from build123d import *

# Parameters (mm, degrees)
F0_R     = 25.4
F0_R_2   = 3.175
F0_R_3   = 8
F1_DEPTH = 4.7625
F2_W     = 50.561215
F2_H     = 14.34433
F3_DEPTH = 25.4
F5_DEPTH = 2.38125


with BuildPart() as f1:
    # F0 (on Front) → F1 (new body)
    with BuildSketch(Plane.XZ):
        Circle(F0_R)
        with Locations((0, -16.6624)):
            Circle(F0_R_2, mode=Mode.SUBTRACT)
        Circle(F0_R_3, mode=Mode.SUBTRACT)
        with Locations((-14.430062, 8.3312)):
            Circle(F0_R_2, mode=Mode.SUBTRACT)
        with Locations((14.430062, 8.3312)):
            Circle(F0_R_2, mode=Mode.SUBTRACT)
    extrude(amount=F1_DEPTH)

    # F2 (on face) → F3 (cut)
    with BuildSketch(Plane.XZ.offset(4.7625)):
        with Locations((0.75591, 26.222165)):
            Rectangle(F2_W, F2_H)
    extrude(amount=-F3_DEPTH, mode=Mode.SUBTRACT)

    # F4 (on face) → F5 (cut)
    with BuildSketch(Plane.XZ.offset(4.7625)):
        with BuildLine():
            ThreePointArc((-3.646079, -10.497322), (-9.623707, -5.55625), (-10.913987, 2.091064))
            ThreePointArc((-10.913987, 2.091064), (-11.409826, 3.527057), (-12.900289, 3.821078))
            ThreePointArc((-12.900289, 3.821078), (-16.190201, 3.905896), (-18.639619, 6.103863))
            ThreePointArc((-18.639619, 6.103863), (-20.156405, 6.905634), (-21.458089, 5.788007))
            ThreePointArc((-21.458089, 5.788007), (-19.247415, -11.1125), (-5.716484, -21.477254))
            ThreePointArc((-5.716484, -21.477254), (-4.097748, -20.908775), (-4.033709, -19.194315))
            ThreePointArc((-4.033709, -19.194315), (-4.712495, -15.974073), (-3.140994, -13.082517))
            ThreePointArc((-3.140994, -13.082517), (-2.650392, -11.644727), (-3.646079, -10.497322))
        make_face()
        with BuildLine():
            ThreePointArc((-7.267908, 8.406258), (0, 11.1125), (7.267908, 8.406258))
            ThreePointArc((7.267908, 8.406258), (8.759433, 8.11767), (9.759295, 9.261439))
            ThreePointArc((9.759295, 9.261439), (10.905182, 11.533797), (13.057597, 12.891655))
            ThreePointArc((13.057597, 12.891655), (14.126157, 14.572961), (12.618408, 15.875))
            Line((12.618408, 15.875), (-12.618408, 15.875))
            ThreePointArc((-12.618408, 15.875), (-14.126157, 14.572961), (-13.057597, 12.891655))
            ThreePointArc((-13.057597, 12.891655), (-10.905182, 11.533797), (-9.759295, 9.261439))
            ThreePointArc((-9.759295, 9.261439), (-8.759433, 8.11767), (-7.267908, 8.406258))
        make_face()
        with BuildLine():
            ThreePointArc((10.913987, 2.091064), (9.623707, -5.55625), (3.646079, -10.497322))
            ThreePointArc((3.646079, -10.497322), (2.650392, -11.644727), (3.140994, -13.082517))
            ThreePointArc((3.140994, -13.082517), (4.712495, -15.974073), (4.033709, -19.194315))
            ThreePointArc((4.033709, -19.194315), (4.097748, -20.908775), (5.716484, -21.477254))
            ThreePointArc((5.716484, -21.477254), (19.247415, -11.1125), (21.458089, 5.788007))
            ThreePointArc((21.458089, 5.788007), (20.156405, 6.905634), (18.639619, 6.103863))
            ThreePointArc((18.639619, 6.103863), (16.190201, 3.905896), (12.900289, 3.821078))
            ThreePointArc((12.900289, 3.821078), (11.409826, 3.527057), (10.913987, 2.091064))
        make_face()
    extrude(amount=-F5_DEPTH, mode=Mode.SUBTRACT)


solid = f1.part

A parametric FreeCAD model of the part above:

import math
import FreeCAD as App
import Part
import Sketcher
Q = App.Units.Quantity


def add_polygon(sketch, points):
    """Adds a closed chain of lines whose ends are joined by coincident constraints."""
    first, n = sketch.GeometryCount, len(points)
    for a, b in zip(points, points[1:] + points[:1]):
        sketch.addGeometry(Part.LineSegment(App.Vector(*a, 0), App.Vector(*b, 0)), False)
    for i in range(n):
        sketch.addConstraint(Sketcher.Constraint("Coincident", first + i, 2, first + (i + 1) % n, 1))

doc = App.newDocument("Part")
params = doc.addObject("Spreadsheet::Sheet", "Params")
for row, (alias, value) in enumerate([
    ("sketch1_diameter", "2 in"),
    ("sketch1_diameter2", "0.25 in"),
    ("pad1_length", "0.1875 in"),
    ("pocket1_length", "1 in"),
    ("sketch3_radius", "0.06 in"),
    ("sketch3_radius2", "0.4375001 in"),
    ("sketch3_radius3", "0.1875 in"),
    ("sketch3_radius4", "0.8749999 in"),
    ("sketch3_radius5", "0.1875001 in"),
    ("pocket2_length", "0.09375 in"),
], start=1):
    params.set(f"A{row}", alias)
    params.set(f"B{row}", "=" + value)
    params.setAlias(f"B{row}", alias)

body = doc.addObject("PartDesign::Body", "Body")

# Sketch on XZ plane
sketch1 = body.newObject("Sketcher::SketchObject", "Sketch")
sketch1.AttachmentSupport = (doc.getObject("XZ_Plane"), [""])
sketch1.MapMode = "FlatFace"
sketch1.addGeometry([
    Part.Circle(App.Vector(0, 0, 0), App.Vector(0, 0, 1), 25.4),  # 0
    Part.Circle(App.Vector(0, -16.7, 0), App.Vector(0, 0, 1), 3.2),  # 1
    Part.Circle(App.Vector(-14.4, 8.3, 0), App.Vector(0, 0, 1), 3.2),  # 2
    Part.Circle(App.Vector(0, 0, 0), App.Vector(0, 0, 1), 8),  # 3
    Part.Circle(App.Vector(14.4, 8.3, 0), App.Vector(0, 0, 1), 3.2),  # 4
], False)
sketch1.addConstraint([
    Sketcher.Constraint("Coincident", 0, 3, -1, 1),
    Sketcher.Constraint("Coincident", 3, 3, -1, 1),
    Sketcher.Constraint("Equal", 1, 2),
    Sketcher.Constraint("Equal", 2, 4),
    Sketcher.Constraint("Symmetric", 2, 3, 4, 3, -2),
    Sketcher.Constraint("PointOnObject", 1, 3, -2),
    Sketcher.Constraint("Diameter", 0, Q("2 in")),
    Sketcher.Constraint("Diameter", 1, Q("0.25 in")),
    Sketcher.Constraint("Diameter", 3, 16.0),
    Sketcher.Constraint("DistanceY", 1, 3, -1, 1, Q("0.656 in")),
    Sketcher.Constraint("DistanceY", -1, 1, 2, 3, Q("0.328 in")),
    Sketcher.Constraint("DistanceX", 2, 3, -1, 1, 14.430062),
])
sketch1.setExpression("Constraints[6]", "Params.sketch1_diameter")
sketch1.setExpression("Constraints[7]", "Params.sketch1_diameter2")
pad1 = body.newObject("PartDesign::Pad", "Pad")
pad1.Profile = sketch1
pad1.setExpression("Length", "Params.pad1_length")

# Sketch on XZ plane
sketch2 = body.newObject("Sketcher::SketchObject", "Sketch001")
sketch2.AttachmentSupport = (doc.getObject("XZ_Plane"), [""])
sketch2.MapMode = "FlatFace"
sketch2.AttachmentOffset = App.Placement(App.Vector(0, 0, 0.1875 * 25.4), App.Rotation())
add_polygon(sketch2, [(-25, 33), (-25, 19), (26, 19), (26, 33)])  # lines 0-3
sketch2.addConstraint([
    Sketcher.Constraint("Vertical", 0),
    Sketcher.Constraint("Horizontal", 1),
    Sketcher.Constraint("Vertical", 2),
    Sketcher.Constraint("Horizontal", 3),
    Sketcher.Constraint("DistanceY", -1, 1, 0, 2, Q("0.75 in")),
    Sketcher.Constraint("DistanceY", 0, 2, 0, 1, 14.34433),
    Sketcher.Constraint("DistanceX", 1, 1, 1, 2, 50.561215),
    Sketcher.Constraint("DistanceX", 0, 2, -1, 1, 24.524697),
])
pocket1 = body.newObject("PartDesign::Pocket", "Pocket")
pocket1.Profile = sketch2
pocket1.setExpression("Length", "Params.pocket1_length")

# Sketch on XZ plane
sketch3 = body.newObject("Sketcher::SketchObject", "Sketch002")
sketch3.AttachmentSupport = (doc.getObject("XZ_Plane"), [""])
sketch3.MapMode = "FlatFace"
sketch3.AttachmentOffset = App.Placement(App.Vector(0, 0, 0.1875 * 25.4), App.Rotation())
sketch3.addGeometry([
    Part.ArcOfCircle(Part.Circle(App.Vector(0, 0, 0), App.Vector(0, 0, 1), 11.1), math.radians(169), math.radians(251)),  # 0
    Part.ArcOfCircle(Part.Circle(App.Vector(-12.4, 2.4, 0), App.Vector(0, 0, 1), 1.5), math.radians(-11), math.radians(109)),  # 1
    Part.ArcOfCircle(Part.Circle(App.Vector(-14.4, 8.3, 0), App.Vector(0, 0, 1), 4.8), math.radians(-152), math.radians(-71)),  # 2
    Part.ArcOfCircle(Part.Circle(App.Vector(-20, 5.4, 0), App.Vector(0, 0, 1), 1.5), math.radians(28), math.radians(165)),  # 3
    Part.ArcOfCircle(Part.Circle(App.Vector(0, 0, 0), App.Vector(0, 0, 1), 22.2), math.radians(165), math.radians(255)),  # 4
    Part.ArcOfCircle(Part.Circle(App.Vector(-5.3, -20, 0), App.Vector(0, 0, 1), 1.5), math.radians(-105), math.radians(32)),  # 5
    Part.ArcOfCircle(Part.Circle(App.Vector(0, -16.7, 0), App.Vector(0, 0, 1), 4.8), math.radians(131), math.radians(212)),  # 6
    Part.ArcOfCircle(Part.Circle(App.Vector(-4.1, -11.9, 0), App.Vector(0, 0, 1), 1.5), math.radians(-49), math.radians(71)),  # 7
    Part.ArcOfCircle(Part.Circle(App.Vector(0, 0, 0), App.Vector(0, 0, 1), 11.1), math.radians(49), math.radians(131)),  # 8
    Part.ArcOfCircle(Part.Circle(App.Vector(8.3, 9.6, 0), App.Vector(0, 0, 1), 1.5), math.radians(-131), math.radians(-11)),  # 9
    Part.ArcOfCircle(Part.Circle(App.Vector(14.4, 8.3, 0), App.Vector(0, 0, 1), 4.8), math.radians(107), math.radians(169)),  # 10
    Part.ArcOfCircle(Part.Circle(App.Vector(12.6, 14.4, 0), App.Vector(0, 0, 1), 1.5), math.radians(-73), math.radians(90)),  # 11
    Part.LineSegment(App.Vector(12.6, 15.9, 0), App.Vector(-12.6, 15.9, 0)),  # 12
    Part.ArcOfCircle(Part.Circle(App.Vector(-12.6, 14.4, 0), App.Vector(0, 0, 1), 1.5), math.radians(90), math.radians(253)),  # 13
    Part.ArcOfCircle(Part.Circle(App.Vector(-14.4, 8.3, 0), App.Vector(0, 0, 1), 4.8), math.radians(11), math.radians(73)),  # 14
    Part.ArcOfCircle(Part.Circle(App.Vector(-8.3, 9.6, 0), App.Vector(0, 0, 1), 1.5), math.radians(-169), math.radians(-49)),  # 15
    Part.ArcOfCircle(Part.Circle(App.Vector(0, 0, 0), App.Vector(0, 0, 1), 11.1), math.radians(-71), math.radians(11)),  # 16
    Part.ArcOfCircle(Part.Circle(App.Vector(4.1, -11.9, 0), App.Vector(0, 0, 1), 1.5), math.radians(109), math.radians(229)),  # 17
    Part.ArcOfCircle(Part.Circle(App.Vector(0, -16.7, 0), App.Vector(0, 0, 1), 4.8), math.radians(-32), math.radians(49)),  # 18
    Part.ArcOfCircle(Part.Circle(App.Vector(5.3, -20, 0), App.Vector(0, 0, 1), 1.5), math.radians(148), math.radians(285)),  # 19
    Part.ArcOfCircle(Part.Circle(App.Vector(0, 0, 0), App.Vector(0, 0, 1), 22.2), math.radians(-75), math.radians(15)),  # 20
    Part.ArcOfCircle(Part.Circle(App.Vector(20, 5.4, 0), App.Vector(0, 0, 1), 1.5), math.radians(15), math.radians(152)),  # 21
    Part.ArcOfCircle(Part.Circle(App.Vector(14.4, 8.3, 0), App.Vector(0, 0, 1), 4.8), math.radians(-109), math.radians(-28)),  # 22
    Part.ArcOfCircle(Part.Circle(App.Vector(12.4, 2.4, 0), App.Vector(0, 0, 1), 1.5), math.radians(71), math.radians(191)),  # 23
], False)
sketch3.addConstraint([
    Sketcher.Constraint("Tangent", 0, 1, 1, 1),
    Sketcher.Constraint("Tangent", 1, 2, 2, 2),
    Sketcher.Constraint("Tangent", 2, 1, 3, 1),
    Sketcher.Constraint("Tangent", 3, 2, 4, 1),
    Sketcher.Constraint("Tangent", 4, 2, 5, 1),
    Sketcher.Constraint("Tangent", 5, 2, 6, 2),
    Sketcher.Constraint("Tangent", 6, 1, 7, 1),
    Sketcher.Constraint("Tangent", 7, 2, 0, 2),
    Sketcher.Constraint("Tangent", 8, 1, 9, 1),
    Sketcher.Constraint("Tangent", 9, 2, 10, 2),
    Sketcher.Constraint("Tangent", 10, 1, 11, 1),
    Sketcher.Constraint("Tangent", 11, 2, 12, 1),
    Sketcher.Constraint("Tangent", 12, 2, 13, 1),
    Sketcher.Constraint("Tangent", 13, 2, 14, 2),
    Sketcher.Constraint("Tangent", 14, 1, 15, 1),
    Sketcher.Constraint("Tangent", 15, 2, 8, 2),
    Sketcher.Constraint("Tangent", 16, 1, 17, 1),
    Sketcher.Constraint("Tangent", 17, 2, 18, 2),
    Sketcher.Constraint("Tangent", 18, 1, 19, 1),
    Sketcher.Constraint("Tangent", 19, 2, 20, 1),
    Sketcher.Constraint("Tangent", 20, 2, 21, 1),
    Sketcher.Constraint("Tangent", 21, 2, 22, 2),
    Sketcher.Constraint("Tangent", 22, 1, 23, 1),
    Sketcher.Constraint("Tangent", 23, 2, 16, 2),
    Sketcher.Constraint("Horizontal", 12),
    Sketcher.Constraint("Coincident", 0, 3, -1, 1),
    Sketcher.Constraint("Coincident", 4, 3, -1, 1),
    Sketcher.Constraint("Coincident", 8, 3, -1, 1),
    Sketcher.Constraint("Coincident", 16, 3, -1, 1),
    Sketcher.Constraint("Coincident", 20, 3, -1, 1),
    Sketcher.Constraint("Coincident", 14, 3, 2, 3),
    Sketcher.Constraint("Coincident", 18, 3, 6, 3),
    Sketcher.Constraint("Coincident", 22, 3, 10, 3),
    Sketcher.Constraint("Equal", 1, 3),
    Sketcher.Constraint("Equal", 3, 5),
    Sketcher.Constraint("Equal", 2, 6),
    Sketcher.Constraint("Equal", 5, 7),
    Sketcher.Constraint("Equal", 0, 8),
    Sketcher.Constraint("Equal", 7, 9),
    Sketcher.Constraint("Equal", 9, 11),
    Sketcher.Constraint("Equal", 11, 13),
    Sketcher.Constraint("Equal", 10, 14),
    Sketcher.Constraint("Equal", 13, 15),
    Sketcher.Constraint("Equal", 8, 16),
    Sketcher.Constraint("Equal", 15, 17),
    Sketcher.Constraint("Equal", 6, 18),
    Sketcher.Constraint("Equal", 17, 19),
    Sketcher.Constraint("Equal", 4, 20),
    Sketcher.Constraint("Equal", 19, 21),
    Sketcher.Constraint("Equal", 18, 22),
    Sketcher.Constraint("Equal", 21, 23),
    Sketcher.Constraint("Symmetric", 2, 3, 10, 3, -2),
    Sketcher.Constraint("PointOnObject", 6, 3, -2),
    Sketcher.Constraint("Radius", 1, Q("0.06 in")),
    Sketcher.Constraint("Radius", 0, Q("0.4375001 in")),
    Sketcher.Constraint("Radius", 2, Q("0.1875 in")),
    Sketcher.Constraint("Radius", 4, Q("0.8749999 in")),
    Sketcher.Constraint("Radius", 10, Q("0.1875001 in")),
    Sketcher.Constraint("DistanceY", -1, 1, 2, 3, Q("0.328 in")),
    Sketcher.Constraint("DistanceY", 6, 3, -1, 1, Q("0.656 in")),
    Sketcher.Constraint("DistanceY", -1, 1, 11, 3, Q("0.565 in")),
    Sketcher.Constraint("DistanceX", 2, 3, 1, 3, Q("0.0795 in")),
])
sketch3.setExpression("Constraints[53]", "Params.sketch3_radius")
sketch3.setExpression("Constraints[54]", "Params.sketch3_radius2")
sketch3.setExpression("Constraints[55]", "Params.sketch3_radius3")
sketch3.setExpression("Constraints[56]", "Params.sketch3_radius4")
sketch3.setExpression("Constraints[57]", "Params.sketch3_radius5")
pocket2 = body.newObject("PartDesign::Pocket", "Pocket001")
pocket2.Profile = sketch3
pocket2.setExpression("Length", "Params.pocket2_length")

doc.recompute()
